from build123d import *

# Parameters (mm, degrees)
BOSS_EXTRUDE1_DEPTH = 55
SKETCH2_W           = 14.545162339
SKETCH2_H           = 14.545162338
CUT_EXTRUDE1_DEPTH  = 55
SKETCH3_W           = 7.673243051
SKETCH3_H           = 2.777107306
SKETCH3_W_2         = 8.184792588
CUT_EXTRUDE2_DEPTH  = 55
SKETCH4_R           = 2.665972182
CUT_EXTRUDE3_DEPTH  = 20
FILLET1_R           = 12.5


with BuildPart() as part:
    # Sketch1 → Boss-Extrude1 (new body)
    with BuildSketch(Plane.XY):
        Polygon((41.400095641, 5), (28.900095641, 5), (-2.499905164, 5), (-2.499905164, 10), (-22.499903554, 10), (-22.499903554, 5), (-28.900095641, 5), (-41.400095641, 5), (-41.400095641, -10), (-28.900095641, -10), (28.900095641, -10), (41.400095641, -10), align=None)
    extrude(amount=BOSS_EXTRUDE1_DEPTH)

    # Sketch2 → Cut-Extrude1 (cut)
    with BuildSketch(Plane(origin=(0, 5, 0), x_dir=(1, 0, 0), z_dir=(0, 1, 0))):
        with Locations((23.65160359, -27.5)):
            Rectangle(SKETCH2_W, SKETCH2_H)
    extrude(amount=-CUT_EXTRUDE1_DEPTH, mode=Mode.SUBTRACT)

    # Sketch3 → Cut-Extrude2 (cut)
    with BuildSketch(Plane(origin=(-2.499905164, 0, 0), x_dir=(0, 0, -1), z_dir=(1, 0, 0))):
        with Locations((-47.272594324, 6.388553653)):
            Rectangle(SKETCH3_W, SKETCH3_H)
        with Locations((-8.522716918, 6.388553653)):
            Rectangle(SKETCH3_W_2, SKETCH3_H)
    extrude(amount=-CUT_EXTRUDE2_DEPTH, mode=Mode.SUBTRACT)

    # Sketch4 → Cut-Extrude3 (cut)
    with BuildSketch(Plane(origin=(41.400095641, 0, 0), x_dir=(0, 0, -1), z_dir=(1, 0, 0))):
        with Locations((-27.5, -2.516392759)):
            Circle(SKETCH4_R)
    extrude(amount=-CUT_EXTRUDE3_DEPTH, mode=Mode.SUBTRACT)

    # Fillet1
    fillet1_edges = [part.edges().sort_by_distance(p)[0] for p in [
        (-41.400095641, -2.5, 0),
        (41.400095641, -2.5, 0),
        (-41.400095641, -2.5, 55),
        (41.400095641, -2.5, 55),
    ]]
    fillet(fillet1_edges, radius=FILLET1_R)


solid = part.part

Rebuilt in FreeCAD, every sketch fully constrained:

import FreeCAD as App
import Part
import Sketcher
from FreeCAD import Vector


def edges_at(feature, points):
    """Names of the edges that pass closest to the given points."""
    edges = feature.Shape.Edges
    near = lambda p: min(range(len(edges)), key=lambda i: edges[i].distToShape(Part.Vertex(*p))[0])
    return sorted({f"Edge{near(p) + 1}" for p in points})

doc = App.newDocument("Part")
body = doc.addObject("PartDesign::Body", "Body")

# Sketch on XY plane
sketch1 = body.newObject("Sketcher::SketchObject", "Sketch")
sketch1.AttachmentSupport = (doc.getObject("XY_Plane"), [""])
sketch1.MapMode = "FlatFace"
sketch1.addGeometry([
    Part.LineSegment(Vector(41.400096, 5, 0), Vector(-2.499905, 5, 0)),  # 0
    Part.LineSegment(Vector(-2.499905, 5, 0), Vector(-2.499905, 10, 0)),  # 1
    Part.LineSegment(Vector(-2.499905, 10, 0), Vector(-22.499904, 10, 0)),  # 2
    Part.LineSegment(Vector(-22.499904, 10, 0), Vector(-22.499904, 5, 0)),  # 3
    Part.LineSegment(Vector(-22.499904, 5, 0), Vector(-41.400096, 5, 0)),  # 4
    Part.LineSegment(Vector(-41.400096, 5, 0), Vector(-41.400096, -10, 0)),  # 5
    Part.LineSegment(Vector(-41.400096, -10, 0), Vector(41.400096, -10, 0)),  # 6
    Part.LineSegment(Vector(41.400096, -10, 0), Vector(41.400096, 5, 0)),  # 7
], False)
sketch1.addConstraint([
    Sketcher.Constraint("Coincident", 0, 2, 1, 1),
    Sketcher.Constraint("Coincident", 1, 2, 2, 1),
    Sketcher.Constraint("Coincident", 2, 2, 3, 1),
    Sketcher.Constraint("Coincident", 3, 2, 4, 1),
    Sketcher.Constraint("Coincident", 4, 2, 5, 1),
    Sketcher.Constraint("Coincident", 5, 2, 6, 1),
    Sketcher.Constraint("Coincident", 6, 2, 7, 1),
    Sketcher.Constraint("Coincident", 7, 2, 0, 1),
    Sketcher.Constraint("Horizontal", 0),
    Sketcher.Constraint("Vertical", 1),
    Sketcher.Constraint("Horizontal", 2),
    Sketcher.Constraint("Vertical", 3),
    Sketcher.Constraint("Horizontal", 4),
    Sketcher.Constraint("Vertical", 5),
    Sketcher.Constraint("Horizontal", 6),
    Sketcher.Constraint("Vertical", 7),
    Sketcher.Constraint("Symmetric", 4, 2, 7, 2, -2),
    Sketcher.Constraint("DistanceX", 2, 2, 2, 1, 19.999998),
    Sketcher.Constraint("DistanceY", 1, 1, 1, 2, 5.0),
    Sketcher.Constraint("DistanceY", 5, 2, 5, 1, 15.0),
    Sketcher.Constraint("DistanceX", 0, 2, 0, 1, 43.900001),
    Sketcher.Constraint("DistanceY", -1, 1, 0, 2, 5.0),
    Sketcher.Constraint("DistanceX", 6, 1, 6, 2, 82.800191),
])
pad1 = body.newObject("PartDesign::Pad", "Pad")
pad1.Profile = sketch1
pad1.Length = 55

# Sketch on XZ plane
sketch2 = body.newObject("Sketcher::SketchObject", "Sketch001")
sketch2.AttachmentSupport = (doc.getObject("XZ_Plane"), [""])
sketch2.MapMode = "FlatFace"
sketch2.AttachmentOffset = App.Placement(Vector(0, 0, -5), App.Rotation())
sketch2.addGeometry([
    Part.LineSegment(Vector(16.379022, 20.227419, 0), Vector(16.379022, 34.772581, 0)),
    Part.LineSegment(Vector(16.379022, 34.772581, 0), Vector(30.924185, 34.772581, 0)),
    Part.LineSegment(Vector(30.924185, 34.772581, 0), Vector(30.924185, 20.227419, 0)),
    Part.LineSegment(Vector(30.924185, 20.227419, 0), Vector(16.379022, 20.227419, 0)),
], False)
sketch2.addConstraint([
    Sketcher.Constraint("Coincident", 0, 2, 1, 1),
    Sketcher.Constraint("Coincident", 1, 2, 2, 1),
    Sketcher.Constraint("Coincident", 2, 2, 3, 1),
    Sketcher.Constraint("Coincident", 3, 2, 0, 1),
    Sketcher.Constraint("Vertical", 0),
    Sketcher.Constraint("Horizontal", 1),
    Sketcher.Constraint("Vertical", 2),
    Sketcher.Constraint("Horizontal", 3),
    Sketcher.Constraint("Equal", 3, 0),
    Sketcher.Constraint("DistanceX", 1, 1, 1, 2, 14.545162),
    Sketcher.Constraint("DistanceY", -1, 1, 0, 2, 34.772581),
    Sketcher.Constraint("DistanceX", -1, 1, 0, 2, 16.379022),
])
pocket1 = body.newObject("PartDesign::Pocket", "Pocket")
pocket1.Profile = sketch2
pocket1.Length = 55
pocket1.Reversed = True

# Sketch on YZ plane
sketch3 = body.newObject("Sketcher::SketchObject", "Sketch002")
sketch3.AttachmentSupport = (doc.getObject("YZ_Plane"), [""])
sketch3.MapMode = "FlatFace"
sketch3.AttachmentOffset = App.Placement(Vector(0, 0, -2.499905), App.Rotation())
sketch3.addGeometry([
    Part.LineSegment(Vector(7.777107, 51.109216, 0), Vector(5, 51.109216, 0)),  # 0
    Part.LineSegment(Vector(5, 51.109216, 0), Vector(5, 43.435973, 0)),  # 1
    Part.LineSegment(Vector(5, 43.435973, 0), Vector(7.777107, 43.435973, 0)),  # 2
    Part.LineSegment(Vector(7.777107, 43.435973, 0), Vector(7.777107, 51.109216, 0)),  # 3
    Part.LineSegment(Vector(7.777107, 12.615113, 0), Vector(5, 12.615113, 0)),  # 4
    Part.LineSegment(Vector(5, 12.615113, 0), Vector(5, 4.430321, 0)),  # 5
    Part.LineSegment(Vector(5, 4.430321, 0), Vector(7.777107, 4.430321, 0)),  # 6
    Part.LineSegment(Vector(7.777107, 4.430321, 0), Vector(7.777107, 12.615113, 0)),  # 7
], False)
sketch3.addConstraint([
    Sketcher.Constraint("Coincident", 0, 2, 1, 1),
    Sketcher.Constraint("Coincident", 1, 2, 2, 1),
    Sketcher.Constraint("Coincident", 2, 2, 3, 1),
    Sketcher.Constraint("Coincident", 3, 2, 0, 1),
    Sketcher.Constraint("Coincident", 4, 2, 5, 1),
    Sketcher.Constraint("Coincident", 5, 2, 6, 1),
    Sketcher.Constraint("Coincident", 6, 2, 7, 1),
    Sketcher.Constraint("Coincident", 7, 2, 4, 1),
    Sketcher.Constraint("Horizontal", 0),
    Sketcher.Constraint("Vertical", 1),
    Sketcher.Constraint("Horizontal", 2),
    Sketcher.Constraint("Vertical", 3),
    Sketcher.Constraint("Horizontal", 4),
    Sketcher.Constraint("Vertical", 5),
    Sketcher.Constraint("Horizontal", 6),
    Sketcher.Constraint("Vertical", 7),
    Sketcher.Constraint("Vertical", 1, 2, 4, 2),
    Sketcher.Constraint("Vertical", 3, 2, 6, 2),
    Sketcher.Constraint("DistanceX", -1, 1, 0, 2, 5.0),
    Sketcher.Constraint("DistanceX", 0, 2, 0, 1, 2.777107),
    Sketcher.Constraint("DistanceY", 1, 2, 1, 1, 7.673243),
    Sketcher.Constraint("DistanceY", 5, 2, 5, 1, 8.184793),
    Sketcher.Constraint("DistanceY", -1, 1, 5, 2, 4.430321),
    Sketcher.Constraint("DistanceY", 4, 2, 1, 2, 30.82086),
])
pocket2 = body.newObject("PartDesign::Pocket", "Pocket001")
pocket2.Profile = sketch3
pocket2.Length = 55

# Sketch on YZ plane
sketch4 = body.newObject("Sketcher::SketchObject", "Sketch003")
sketch4.AttachmentSupport = (doc.getObject("YZ_Plane"), [""])
sketch4.MapMode = "FlatFace"
sketch4.AttachmentOffset = App.Placement(Vector(0, 0, 41.400096), App.Rotation())
sketch4.addGeometry(Part.Circle(Vector(-2.516393, 27.5, 0), Vector(0, 0, 1), 2.665972), False)
sketch4.addConstraint([
    Sketcher.Constraint("DistanceY", -1, 1, 0, 3, 27.5),
    Sketcher.Constraint("Diameter", 0, 5.331944),
    Sketcher.Constraint("DistanceX", 0, 3, -1, 1, 2.516393),
])
pocket3 = body.newObject("PartDesign::Pocket", "Pocket002")
pocket3.Profile = sketch4
pocket3.Length = 20
doc.recompute()

fillet = body.newObject("PartDesign::Fillet", "Fillet")
fillet.Base = (pocket3, edges_at(pocket3, [
    (-41.4, -2.5, 0),
    (41.4, -2.5, 0),
    (-41.4, -2.5, 55),
    (41.4, -2.5, 55),
]))
fillet.Radius = 12.5

doc.recompute()
